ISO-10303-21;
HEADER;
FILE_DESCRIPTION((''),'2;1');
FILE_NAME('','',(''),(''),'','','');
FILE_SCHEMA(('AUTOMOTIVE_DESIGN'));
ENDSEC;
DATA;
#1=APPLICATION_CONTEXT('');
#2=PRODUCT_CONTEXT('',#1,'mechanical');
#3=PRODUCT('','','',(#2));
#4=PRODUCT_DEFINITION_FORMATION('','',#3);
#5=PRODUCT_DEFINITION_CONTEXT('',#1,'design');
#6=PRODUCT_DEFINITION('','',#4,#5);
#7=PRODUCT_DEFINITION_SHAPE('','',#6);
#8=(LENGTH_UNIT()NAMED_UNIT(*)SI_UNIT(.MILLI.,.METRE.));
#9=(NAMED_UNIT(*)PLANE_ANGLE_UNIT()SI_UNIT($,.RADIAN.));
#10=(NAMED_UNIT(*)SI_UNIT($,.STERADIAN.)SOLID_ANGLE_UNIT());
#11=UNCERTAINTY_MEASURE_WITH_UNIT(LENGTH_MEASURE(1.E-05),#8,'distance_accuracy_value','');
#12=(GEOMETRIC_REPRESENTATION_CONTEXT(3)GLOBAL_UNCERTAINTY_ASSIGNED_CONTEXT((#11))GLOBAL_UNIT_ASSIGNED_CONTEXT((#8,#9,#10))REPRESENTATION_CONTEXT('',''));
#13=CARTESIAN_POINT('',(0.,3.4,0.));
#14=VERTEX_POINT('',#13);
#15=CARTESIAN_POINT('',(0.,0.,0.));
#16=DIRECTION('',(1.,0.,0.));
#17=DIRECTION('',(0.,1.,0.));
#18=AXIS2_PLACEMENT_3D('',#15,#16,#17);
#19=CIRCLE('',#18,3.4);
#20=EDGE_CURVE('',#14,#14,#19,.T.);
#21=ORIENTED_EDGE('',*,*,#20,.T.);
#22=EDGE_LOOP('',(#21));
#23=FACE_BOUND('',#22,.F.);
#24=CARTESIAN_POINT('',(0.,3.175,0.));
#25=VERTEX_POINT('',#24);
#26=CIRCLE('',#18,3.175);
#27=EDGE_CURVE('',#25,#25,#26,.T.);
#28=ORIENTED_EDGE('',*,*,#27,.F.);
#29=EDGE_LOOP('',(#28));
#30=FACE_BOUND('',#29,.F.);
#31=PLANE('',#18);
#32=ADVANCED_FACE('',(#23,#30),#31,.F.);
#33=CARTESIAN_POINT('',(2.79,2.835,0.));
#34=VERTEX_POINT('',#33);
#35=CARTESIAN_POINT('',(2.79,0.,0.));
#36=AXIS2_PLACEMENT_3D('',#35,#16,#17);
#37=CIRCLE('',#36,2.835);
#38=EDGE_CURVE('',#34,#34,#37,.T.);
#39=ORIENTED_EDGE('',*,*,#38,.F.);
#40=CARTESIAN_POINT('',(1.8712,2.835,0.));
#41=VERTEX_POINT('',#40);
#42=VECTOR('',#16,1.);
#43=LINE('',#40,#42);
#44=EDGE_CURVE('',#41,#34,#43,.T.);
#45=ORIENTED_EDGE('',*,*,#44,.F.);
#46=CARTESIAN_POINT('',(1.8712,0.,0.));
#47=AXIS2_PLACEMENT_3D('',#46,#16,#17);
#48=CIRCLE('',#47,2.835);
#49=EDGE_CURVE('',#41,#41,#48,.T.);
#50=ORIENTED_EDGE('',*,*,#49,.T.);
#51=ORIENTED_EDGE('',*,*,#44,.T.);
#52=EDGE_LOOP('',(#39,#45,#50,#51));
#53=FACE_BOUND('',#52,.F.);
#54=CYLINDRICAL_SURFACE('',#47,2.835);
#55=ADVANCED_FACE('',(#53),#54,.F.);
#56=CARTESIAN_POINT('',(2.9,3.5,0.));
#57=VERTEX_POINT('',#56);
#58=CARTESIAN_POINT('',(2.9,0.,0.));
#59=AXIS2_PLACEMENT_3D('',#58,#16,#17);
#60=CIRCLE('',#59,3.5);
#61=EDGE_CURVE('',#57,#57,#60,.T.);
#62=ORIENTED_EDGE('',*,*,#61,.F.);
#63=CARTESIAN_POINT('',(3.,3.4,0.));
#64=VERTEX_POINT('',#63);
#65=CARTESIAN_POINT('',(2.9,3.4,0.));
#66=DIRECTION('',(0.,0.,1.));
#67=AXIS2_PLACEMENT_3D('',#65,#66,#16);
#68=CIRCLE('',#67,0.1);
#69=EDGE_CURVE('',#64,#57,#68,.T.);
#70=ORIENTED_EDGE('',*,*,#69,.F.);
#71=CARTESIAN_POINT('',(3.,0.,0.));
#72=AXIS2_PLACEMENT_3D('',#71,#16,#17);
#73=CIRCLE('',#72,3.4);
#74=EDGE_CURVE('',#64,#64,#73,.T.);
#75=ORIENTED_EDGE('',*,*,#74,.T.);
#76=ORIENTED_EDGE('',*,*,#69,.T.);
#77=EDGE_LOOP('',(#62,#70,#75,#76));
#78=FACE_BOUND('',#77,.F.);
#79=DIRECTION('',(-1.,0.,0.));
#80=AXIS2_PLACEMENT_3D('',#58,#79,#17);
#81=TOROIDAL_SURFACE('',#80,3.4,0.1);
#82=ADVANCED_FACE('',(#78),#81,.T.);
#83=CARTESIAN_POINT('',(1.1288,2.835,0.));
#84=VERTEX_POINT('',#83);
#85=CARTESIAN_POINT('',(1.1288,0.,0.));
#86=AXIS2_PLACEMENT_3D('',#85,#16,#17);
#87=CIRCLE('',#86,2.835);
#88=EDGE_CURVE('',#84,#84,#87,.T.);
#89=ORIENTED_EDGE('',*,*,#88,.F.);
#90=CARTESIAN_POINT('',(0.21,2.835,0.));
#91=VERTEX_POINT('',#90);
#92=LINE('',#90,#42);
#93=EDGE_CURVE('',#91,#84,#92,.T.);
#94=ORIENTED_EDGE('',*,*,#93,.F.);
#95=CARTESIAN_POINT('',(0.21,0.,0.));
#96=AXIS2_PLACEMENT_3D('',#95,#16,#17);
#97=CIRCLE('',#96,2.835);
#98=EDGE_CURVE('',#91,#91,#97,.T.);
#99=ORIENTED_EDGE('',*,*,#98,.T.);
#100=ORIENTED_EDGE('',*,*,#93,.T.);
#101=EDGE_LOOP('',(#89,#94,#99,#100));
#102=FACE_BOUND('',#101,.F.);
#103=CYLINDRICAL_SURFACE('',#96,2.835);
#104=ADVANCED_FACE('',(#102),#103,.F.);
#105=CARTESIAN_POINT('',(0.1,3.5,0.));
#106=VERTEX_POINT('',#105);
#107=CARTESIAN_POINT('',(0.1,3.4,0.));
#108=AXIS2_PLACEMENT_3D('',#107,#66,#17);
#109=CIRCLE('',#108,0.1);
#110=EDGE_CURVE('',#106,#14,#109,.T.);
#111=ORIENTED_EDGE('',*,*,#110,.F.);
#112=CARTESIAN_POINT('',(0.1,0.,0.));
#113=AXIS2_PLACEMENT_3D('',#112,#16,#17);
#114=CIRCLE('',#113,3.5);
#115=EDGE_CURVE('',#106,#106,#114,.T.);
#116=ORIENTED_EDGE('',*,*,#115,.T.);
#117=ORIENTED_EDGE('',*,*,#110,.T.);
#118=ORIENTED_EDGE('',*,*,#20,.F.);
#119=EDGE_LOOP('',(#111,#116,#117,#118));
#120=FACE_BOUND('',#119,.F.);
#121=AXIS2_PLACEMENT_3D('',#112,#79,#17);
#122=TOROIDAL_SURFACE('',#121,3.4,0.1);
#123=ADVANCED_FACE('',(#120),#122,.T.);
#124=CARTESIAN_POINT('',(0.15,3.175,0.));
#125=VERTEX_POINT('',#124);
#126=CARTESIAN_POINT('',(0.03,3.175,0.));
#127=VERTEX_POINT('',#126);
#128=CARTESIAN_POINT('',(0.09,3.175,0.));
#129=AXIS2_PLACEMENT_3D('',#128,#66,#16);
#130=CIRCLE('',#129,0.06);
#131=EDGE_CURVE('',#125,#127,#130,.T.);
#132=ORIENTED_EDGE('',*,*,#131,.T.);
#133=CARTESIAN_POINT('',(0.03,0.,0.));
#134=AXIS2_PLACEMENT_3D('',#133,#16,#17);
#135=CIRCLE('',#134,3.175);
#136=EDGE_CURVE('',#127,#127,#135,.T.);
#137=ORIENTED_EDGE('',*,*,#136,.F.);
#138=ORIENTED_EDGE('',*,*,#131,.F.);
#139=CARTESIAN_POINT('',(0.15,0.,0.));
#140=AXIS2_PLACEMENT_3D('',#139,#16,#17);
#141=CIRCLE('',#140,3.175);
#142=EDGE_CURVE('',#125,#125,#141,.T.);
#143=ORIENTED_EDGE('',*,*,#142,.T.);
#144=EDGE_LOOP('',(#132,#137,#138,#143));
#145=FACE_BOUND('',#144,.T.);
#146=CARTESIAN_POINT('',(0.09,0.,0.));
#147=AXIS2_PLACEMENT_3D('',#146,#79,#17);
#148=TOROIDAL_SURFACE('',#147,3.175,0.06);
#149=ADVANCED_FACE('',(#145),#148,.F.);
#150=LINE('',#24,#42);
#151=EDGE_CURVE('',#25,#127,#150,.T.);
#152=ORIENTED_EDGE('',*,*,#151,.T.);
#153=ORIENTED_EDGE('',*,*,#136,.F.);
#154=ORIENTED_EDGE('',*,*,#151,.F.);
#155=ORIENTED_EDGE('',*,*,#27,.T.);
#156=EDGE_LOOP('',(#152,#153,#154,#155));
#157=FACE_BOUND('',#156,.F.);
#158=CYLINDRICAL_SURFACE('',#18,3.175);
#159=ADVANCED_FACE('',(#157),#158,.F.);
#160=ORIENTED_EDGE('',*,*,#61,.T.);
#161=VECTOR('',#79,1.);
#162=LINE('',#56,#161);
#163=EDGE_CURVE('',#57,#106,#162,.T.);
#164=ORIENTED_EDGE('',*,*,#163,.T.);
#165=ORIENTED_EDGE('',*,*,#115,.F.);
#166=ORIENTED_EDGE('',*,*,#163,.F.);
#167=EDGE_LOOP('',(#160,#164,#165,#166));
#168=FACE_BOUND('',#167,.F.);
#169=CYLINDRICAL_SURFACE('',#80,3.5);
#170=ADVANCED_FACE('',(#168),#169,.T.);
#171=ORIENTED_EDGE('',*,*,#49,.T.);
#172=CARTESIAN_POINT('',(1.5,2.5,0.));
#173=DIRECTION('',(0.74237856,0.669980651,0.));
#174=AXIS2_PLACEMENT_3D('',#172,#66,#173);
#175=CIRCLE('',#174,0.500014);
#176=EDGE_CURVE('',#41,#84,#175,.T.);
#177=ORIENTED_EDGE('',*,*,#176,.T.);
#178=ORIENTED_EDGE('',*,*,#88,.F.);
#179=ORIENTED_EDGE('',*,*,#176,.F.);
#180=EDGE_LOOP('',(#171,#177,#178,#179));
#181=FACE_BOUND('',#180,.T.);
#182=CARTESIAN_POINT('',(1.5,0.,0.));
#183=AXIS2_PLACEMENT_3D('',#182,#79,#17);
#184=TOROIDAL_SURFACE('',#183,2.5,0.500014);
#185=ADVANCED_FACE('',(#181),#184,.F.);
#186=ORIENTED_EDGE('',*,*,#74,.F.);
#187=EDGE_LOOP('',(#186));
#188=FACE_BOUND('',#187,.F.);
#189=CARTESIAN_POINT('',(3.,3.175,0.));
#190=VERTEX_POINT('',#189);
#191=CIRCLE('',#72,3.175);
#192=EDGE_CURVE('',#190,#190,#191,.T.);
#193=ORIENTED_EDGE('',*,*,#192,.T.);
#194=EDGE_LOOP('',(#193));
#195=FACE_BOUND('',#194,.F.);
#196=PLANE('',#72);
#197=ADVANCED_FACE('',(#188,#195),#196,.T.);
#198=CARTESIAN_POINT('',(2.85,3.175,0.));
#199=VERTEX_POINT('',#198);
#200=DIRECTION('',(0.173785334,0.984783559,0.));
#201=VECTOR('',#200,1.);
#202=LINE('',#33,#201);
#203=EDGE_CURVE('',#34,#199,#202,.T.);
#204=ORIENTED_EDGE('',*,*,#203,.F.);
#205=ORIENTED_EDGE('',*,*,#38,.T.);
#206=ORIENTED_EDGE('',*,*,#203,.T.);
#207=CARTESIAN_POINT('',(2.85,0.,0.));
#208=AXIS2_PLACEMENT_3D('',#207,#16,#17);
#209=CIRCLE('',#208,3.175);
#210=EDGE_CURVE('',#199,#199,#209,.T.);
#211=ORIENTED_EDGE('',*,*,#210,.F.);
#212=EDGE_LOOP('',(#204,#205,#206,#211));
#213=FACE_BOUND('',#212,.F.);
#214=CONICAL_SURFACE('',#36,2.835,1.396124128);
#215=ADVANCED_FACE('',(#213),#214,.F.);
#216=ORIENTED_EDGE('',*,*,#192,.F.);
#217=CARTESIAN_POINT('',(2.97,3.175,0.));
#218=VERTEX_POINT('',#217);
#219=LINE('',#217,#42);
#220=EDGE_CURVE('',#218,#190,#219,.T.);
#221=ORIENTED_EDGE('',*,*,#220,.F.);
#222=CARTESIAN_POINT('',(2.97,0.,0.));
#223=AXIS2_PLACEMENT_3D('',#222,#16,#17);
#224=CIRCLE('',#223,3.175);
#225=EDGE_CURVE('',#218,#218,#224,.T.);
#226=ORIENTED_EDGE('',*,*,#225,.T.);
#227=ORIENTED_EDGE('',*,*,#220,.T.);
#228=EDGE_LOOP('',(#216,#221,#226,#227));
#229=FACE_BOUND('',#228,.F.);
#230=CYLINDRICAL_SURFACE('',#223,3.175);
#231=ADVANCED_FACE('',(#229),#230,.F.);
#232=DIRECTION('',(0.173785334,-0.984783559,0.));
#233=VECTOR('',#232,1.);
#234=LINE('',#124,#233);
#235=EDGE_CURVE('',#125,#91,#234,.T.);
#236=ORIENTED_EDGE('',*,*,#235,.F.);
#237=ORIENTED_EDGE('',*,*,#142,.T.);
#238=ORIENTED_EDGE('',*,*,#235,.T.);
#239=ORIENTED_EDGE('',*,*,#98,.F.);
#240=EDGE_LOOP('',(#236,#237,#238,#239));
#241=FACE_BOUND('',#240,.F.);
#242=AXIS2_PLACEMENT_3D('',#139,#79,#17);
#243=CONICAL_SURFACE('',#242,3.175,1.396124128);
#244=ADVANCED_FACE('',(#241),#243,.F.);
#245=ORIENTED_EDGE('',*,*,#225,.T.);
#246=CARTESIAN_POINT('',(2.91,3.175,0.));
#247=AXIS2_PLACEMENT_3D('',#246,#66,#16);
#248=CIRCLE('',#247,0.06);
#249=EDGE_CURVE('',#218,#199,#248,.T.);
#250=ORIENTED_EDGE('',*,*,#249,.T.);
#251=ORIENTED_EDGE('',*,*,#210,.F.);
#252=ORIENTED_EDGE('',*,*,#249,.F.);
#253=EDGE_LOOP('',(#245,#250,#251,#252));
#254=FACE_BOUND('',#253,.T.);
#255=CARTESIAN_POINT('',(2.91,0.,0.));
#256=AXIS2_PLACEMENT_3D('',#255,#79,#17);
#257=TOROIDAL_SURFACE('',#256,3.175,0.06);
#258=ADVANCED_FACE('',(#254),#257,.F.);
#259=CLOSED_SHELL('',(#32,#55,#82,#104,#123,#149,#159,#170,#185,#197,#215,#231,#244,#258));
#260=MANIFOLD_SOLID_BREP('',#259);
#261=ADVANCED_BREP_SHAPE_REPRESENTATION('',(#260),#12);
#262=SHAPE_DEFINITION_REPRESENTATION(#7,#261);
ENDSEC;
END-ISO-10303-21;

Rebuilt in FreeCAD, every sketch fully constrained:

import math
import FreeCAD as App
import Part
import Sketcher
from FreeCAD import Vector
Q = App.Units.Quantity

doc = App.newDocument("Part")
body = doc.addObject("PartDesign::Body", "Body")

# Sketch on XY plane
sketch1 = body.newObject("Sketcher::SketchObject", "Sketch")
sketch1.AttachmentSupport = (doc.getObject("XY_Plane"), [""])
sketch1.MapMode = "FlatFace"
sketch1.addGeometry(Part.ArcOfCircle(Part.Circle(Vector(0.1, 3.4, 0), Vector(0, 0, 1), 0.1), math.radians(90), math.radians(180)), False)
sketch1.addGeometry(Part.LineSegment(Vector(0, 3.4, 0), Vector(0, 3.175, 0)), False)
sketch1.addGeometry(Part.LineSegment(Vector(0, 3.175, 0), Vector(0.03, 3.175, 0)), False)
sketch1.addGeometry(Part.ArcOfCircle(Part.Circle(Vector(0.09, 3.175, 0), Vector(0, 0, 1), 0.06), math.radians(0), math.radians(180)), False)
sketch1.addGeometry(Part.LineSegment(Vector(0.15, 3.175, 0), Vector(0.21, 2.835, 0)), False)
sketch1.addGeometry(Part.LineSegment(Vector(0.21, 2.835, 0), Vector(1.129, 2.835, 0)), False)
sketch1.addGeometry(Part.ArcOfCircle(Part.Circle(Vector(1.5, 2.5, 0), Vector(0, 0, 1), 0.5), math.radians(42), math.radians(138)), False)
sketch1.addGeometry(Part.LineSegment(Vector(1.871, 2.835, 0), Vector(2.79, 2.835, 0)), False)
sketch1.addGeometry(Part.LineSegment(Vector(2.79, 2.835, 0), Vector(2.85, 3.175, 0)), False)
sketch1.addGeometry(Part.ArcOfCircle(Part.Circle(Vector(2.91, 3.175, 0), Vector(0, 0, 1), 0.06), math.radians(0), math.radians(180)), False)
sketch1.addGeometry(Part.LineSegment(Vector(2.97, 3.175, 0), Vector(3, 3.175, 0)), False)
sketch1.addGeometry(Part.LineSegment(Vector(3, 3.175, 0), Vector(3, 3.4, 0)), False)
sketch1.addGeometry(Part.ArcOfCircle(Part.Circle(Vector(2.9, 3.4, 0), Vector(0, 0, 1), 0.1), math.radians(0), math.radians(90)), False)
sketch1.addGeometry(Part.LineSegment(Vector(2.9, 3.5, 0), Vector(0.1, 3.5, 0)), False)
sketch1.addConstraint(Sketcher.Constraint("Tangent", 0, 2, 1, 1))
sketch1.addConstraint(Sketcher.Constraint("Coincident", 1, 2, 2, 1))
sketch1.addConstraint(Sketcher.Constraint("Coincident", 2, 2, 3, 2))
sketch1.addConstraint(Sketcher.Constraint("Coincident", 3, 1, 4, 1))
sketch1.addConstraint(Sketcher.Constraint("Coincident", 4, 2, 5, 1))
sketch1.addConstraint(Sketcher.Constraint("Coincident", 5, 2, 6, 2))
sketch1.addConstraint(Sketcher.Constraint("Coincident", 6, 1, 7, 1))
sketch1.addConstraint(Sketcher.Constraint("Coincident", 7, 2, 8, 1))
sketch1.addConstraint(Sketcher.Constraint("Coincident", 8, 2, 9, 2))
sketch1.addConstraint(Sketcher.Constraint("Coincident", 9, 1, 10, 1))
sketch1.addConstraint(Sketcher.Constraint("Coincident", 10, 2, 11, 1))
sketch1.addConstraint(Sketcher.Constraint("Tangent", 11, 2, 12, 1))
sketch1.addConstraint(Sketcher.Constraint("Tangent", 12, 2, 13, 1))
sketch1.addConstraint(Sketcher.Constraint("Tangent", 13, 2, 0, 1))
sketch1.addConstraint(Sketcher.Constraint("Vertical", 1))
sketch1.addConstraint(Sketcher.Constraint("Horizontal", 2))
sketch1.addConstraint(Sketcher.Constraint("Horizontal", 5))
sketch1.addConstraint(Sketcher.Constraint("Horizontal", 7))
sketch1.addConstraint(Sketcher.Constraint("Horizontal", 10))
sketch1.addConstraint(Sketcher.Constraint("Vertical", 11))
sketch1.addConstraint(Sketcher.Constraint("Horizontal", 13))
sketch1.addConstraint(Sketcher.Constraint("Equal", 3, 9))
sketch1.addConstraint(Sketcher.Constraint("Equal", 0, 12))
sketch1.addConstraint(Sketcher.Constraint("PointOnObject", 0, 2, -2))
sketch1.addConstraint(Sketcher.Constraint("Horizontal", 3, 3, 9, 3))
sketch1.addConstraint(Sketcher.Constraint("Horizontal", 9, 3, 1, 2))
sketch1.addConstraint(Sketcher.Constraint("Horizontal", 2, 2, 3, 1))
sketch1.addConstraint(Sketcher.Constraint("Horizontal", 5, 2, 6, 1))
sketch1.addConstraint(Sketcher.Constraint("Horizontal", 3, 1, 8, 2))
sketch1.addConstraint(Sketcher.Constraint("Horizontal", 8, 2, 9, 1))
sketch1.addConstraint(Sketcher.Constraint("Equal", 5, 7))
sketch1.addConstraint(Sketcher.Constraint("Equal", 2, 10))
sketch1.addConstraint(Sketcher.Constraint("Equal", 4, 8))
sketch1.addConstraint(Sketcher.Constraint("Radius", 0, Q("0.1 mm")))
sketch1.addConstraint(Sketcher.Constraint("Radius", 6, Q("0.5 mm")))
sketch1.addConstraint(Sketcher.Constraint("Radius", 3, Q("0.06 mm")))
sketch1.addConstraint(Sketcher.Constraint("DistanceX", 13, 2, 13, 1, Q("2.8 mm")))
sketch1.addConstraint(Sketcher.Constraint("DistanceX", 2, 1, 2, 2, Q("0.03 mm")))
sketch1.addConstraint(Sketcher.Constraint("DistanceY", -1, 1, 0, 3, Q("3.4 mm")))
sketch1.addConstraint(Sketcher.Constraint("DistanceY", -1, 1, 6, 3, Q("2.5 mm")))
sketch1.addConstraint(Sketcher.Constraint("DistanceY", 1, 2, 1, 1, Q("0.225 mm")))
sketch1.addConstraint(Sketcher.Constraint("DistanceX", -1, 1, 4, 2, Q("0.21 mm")))
sketch1.addConstraint(Sketcher.Constraint("DistanceY", 4, 2, 3, 1, Q("0.34 mm")))
revolution = body.newObject("PartDesign::Revolution", "Revolution")
revolution.Profile = sketch1
revolution.ReferenceAxis = (sketch1, ["H_Axis"])
revolution.Angle = 360

doc.recompute()
